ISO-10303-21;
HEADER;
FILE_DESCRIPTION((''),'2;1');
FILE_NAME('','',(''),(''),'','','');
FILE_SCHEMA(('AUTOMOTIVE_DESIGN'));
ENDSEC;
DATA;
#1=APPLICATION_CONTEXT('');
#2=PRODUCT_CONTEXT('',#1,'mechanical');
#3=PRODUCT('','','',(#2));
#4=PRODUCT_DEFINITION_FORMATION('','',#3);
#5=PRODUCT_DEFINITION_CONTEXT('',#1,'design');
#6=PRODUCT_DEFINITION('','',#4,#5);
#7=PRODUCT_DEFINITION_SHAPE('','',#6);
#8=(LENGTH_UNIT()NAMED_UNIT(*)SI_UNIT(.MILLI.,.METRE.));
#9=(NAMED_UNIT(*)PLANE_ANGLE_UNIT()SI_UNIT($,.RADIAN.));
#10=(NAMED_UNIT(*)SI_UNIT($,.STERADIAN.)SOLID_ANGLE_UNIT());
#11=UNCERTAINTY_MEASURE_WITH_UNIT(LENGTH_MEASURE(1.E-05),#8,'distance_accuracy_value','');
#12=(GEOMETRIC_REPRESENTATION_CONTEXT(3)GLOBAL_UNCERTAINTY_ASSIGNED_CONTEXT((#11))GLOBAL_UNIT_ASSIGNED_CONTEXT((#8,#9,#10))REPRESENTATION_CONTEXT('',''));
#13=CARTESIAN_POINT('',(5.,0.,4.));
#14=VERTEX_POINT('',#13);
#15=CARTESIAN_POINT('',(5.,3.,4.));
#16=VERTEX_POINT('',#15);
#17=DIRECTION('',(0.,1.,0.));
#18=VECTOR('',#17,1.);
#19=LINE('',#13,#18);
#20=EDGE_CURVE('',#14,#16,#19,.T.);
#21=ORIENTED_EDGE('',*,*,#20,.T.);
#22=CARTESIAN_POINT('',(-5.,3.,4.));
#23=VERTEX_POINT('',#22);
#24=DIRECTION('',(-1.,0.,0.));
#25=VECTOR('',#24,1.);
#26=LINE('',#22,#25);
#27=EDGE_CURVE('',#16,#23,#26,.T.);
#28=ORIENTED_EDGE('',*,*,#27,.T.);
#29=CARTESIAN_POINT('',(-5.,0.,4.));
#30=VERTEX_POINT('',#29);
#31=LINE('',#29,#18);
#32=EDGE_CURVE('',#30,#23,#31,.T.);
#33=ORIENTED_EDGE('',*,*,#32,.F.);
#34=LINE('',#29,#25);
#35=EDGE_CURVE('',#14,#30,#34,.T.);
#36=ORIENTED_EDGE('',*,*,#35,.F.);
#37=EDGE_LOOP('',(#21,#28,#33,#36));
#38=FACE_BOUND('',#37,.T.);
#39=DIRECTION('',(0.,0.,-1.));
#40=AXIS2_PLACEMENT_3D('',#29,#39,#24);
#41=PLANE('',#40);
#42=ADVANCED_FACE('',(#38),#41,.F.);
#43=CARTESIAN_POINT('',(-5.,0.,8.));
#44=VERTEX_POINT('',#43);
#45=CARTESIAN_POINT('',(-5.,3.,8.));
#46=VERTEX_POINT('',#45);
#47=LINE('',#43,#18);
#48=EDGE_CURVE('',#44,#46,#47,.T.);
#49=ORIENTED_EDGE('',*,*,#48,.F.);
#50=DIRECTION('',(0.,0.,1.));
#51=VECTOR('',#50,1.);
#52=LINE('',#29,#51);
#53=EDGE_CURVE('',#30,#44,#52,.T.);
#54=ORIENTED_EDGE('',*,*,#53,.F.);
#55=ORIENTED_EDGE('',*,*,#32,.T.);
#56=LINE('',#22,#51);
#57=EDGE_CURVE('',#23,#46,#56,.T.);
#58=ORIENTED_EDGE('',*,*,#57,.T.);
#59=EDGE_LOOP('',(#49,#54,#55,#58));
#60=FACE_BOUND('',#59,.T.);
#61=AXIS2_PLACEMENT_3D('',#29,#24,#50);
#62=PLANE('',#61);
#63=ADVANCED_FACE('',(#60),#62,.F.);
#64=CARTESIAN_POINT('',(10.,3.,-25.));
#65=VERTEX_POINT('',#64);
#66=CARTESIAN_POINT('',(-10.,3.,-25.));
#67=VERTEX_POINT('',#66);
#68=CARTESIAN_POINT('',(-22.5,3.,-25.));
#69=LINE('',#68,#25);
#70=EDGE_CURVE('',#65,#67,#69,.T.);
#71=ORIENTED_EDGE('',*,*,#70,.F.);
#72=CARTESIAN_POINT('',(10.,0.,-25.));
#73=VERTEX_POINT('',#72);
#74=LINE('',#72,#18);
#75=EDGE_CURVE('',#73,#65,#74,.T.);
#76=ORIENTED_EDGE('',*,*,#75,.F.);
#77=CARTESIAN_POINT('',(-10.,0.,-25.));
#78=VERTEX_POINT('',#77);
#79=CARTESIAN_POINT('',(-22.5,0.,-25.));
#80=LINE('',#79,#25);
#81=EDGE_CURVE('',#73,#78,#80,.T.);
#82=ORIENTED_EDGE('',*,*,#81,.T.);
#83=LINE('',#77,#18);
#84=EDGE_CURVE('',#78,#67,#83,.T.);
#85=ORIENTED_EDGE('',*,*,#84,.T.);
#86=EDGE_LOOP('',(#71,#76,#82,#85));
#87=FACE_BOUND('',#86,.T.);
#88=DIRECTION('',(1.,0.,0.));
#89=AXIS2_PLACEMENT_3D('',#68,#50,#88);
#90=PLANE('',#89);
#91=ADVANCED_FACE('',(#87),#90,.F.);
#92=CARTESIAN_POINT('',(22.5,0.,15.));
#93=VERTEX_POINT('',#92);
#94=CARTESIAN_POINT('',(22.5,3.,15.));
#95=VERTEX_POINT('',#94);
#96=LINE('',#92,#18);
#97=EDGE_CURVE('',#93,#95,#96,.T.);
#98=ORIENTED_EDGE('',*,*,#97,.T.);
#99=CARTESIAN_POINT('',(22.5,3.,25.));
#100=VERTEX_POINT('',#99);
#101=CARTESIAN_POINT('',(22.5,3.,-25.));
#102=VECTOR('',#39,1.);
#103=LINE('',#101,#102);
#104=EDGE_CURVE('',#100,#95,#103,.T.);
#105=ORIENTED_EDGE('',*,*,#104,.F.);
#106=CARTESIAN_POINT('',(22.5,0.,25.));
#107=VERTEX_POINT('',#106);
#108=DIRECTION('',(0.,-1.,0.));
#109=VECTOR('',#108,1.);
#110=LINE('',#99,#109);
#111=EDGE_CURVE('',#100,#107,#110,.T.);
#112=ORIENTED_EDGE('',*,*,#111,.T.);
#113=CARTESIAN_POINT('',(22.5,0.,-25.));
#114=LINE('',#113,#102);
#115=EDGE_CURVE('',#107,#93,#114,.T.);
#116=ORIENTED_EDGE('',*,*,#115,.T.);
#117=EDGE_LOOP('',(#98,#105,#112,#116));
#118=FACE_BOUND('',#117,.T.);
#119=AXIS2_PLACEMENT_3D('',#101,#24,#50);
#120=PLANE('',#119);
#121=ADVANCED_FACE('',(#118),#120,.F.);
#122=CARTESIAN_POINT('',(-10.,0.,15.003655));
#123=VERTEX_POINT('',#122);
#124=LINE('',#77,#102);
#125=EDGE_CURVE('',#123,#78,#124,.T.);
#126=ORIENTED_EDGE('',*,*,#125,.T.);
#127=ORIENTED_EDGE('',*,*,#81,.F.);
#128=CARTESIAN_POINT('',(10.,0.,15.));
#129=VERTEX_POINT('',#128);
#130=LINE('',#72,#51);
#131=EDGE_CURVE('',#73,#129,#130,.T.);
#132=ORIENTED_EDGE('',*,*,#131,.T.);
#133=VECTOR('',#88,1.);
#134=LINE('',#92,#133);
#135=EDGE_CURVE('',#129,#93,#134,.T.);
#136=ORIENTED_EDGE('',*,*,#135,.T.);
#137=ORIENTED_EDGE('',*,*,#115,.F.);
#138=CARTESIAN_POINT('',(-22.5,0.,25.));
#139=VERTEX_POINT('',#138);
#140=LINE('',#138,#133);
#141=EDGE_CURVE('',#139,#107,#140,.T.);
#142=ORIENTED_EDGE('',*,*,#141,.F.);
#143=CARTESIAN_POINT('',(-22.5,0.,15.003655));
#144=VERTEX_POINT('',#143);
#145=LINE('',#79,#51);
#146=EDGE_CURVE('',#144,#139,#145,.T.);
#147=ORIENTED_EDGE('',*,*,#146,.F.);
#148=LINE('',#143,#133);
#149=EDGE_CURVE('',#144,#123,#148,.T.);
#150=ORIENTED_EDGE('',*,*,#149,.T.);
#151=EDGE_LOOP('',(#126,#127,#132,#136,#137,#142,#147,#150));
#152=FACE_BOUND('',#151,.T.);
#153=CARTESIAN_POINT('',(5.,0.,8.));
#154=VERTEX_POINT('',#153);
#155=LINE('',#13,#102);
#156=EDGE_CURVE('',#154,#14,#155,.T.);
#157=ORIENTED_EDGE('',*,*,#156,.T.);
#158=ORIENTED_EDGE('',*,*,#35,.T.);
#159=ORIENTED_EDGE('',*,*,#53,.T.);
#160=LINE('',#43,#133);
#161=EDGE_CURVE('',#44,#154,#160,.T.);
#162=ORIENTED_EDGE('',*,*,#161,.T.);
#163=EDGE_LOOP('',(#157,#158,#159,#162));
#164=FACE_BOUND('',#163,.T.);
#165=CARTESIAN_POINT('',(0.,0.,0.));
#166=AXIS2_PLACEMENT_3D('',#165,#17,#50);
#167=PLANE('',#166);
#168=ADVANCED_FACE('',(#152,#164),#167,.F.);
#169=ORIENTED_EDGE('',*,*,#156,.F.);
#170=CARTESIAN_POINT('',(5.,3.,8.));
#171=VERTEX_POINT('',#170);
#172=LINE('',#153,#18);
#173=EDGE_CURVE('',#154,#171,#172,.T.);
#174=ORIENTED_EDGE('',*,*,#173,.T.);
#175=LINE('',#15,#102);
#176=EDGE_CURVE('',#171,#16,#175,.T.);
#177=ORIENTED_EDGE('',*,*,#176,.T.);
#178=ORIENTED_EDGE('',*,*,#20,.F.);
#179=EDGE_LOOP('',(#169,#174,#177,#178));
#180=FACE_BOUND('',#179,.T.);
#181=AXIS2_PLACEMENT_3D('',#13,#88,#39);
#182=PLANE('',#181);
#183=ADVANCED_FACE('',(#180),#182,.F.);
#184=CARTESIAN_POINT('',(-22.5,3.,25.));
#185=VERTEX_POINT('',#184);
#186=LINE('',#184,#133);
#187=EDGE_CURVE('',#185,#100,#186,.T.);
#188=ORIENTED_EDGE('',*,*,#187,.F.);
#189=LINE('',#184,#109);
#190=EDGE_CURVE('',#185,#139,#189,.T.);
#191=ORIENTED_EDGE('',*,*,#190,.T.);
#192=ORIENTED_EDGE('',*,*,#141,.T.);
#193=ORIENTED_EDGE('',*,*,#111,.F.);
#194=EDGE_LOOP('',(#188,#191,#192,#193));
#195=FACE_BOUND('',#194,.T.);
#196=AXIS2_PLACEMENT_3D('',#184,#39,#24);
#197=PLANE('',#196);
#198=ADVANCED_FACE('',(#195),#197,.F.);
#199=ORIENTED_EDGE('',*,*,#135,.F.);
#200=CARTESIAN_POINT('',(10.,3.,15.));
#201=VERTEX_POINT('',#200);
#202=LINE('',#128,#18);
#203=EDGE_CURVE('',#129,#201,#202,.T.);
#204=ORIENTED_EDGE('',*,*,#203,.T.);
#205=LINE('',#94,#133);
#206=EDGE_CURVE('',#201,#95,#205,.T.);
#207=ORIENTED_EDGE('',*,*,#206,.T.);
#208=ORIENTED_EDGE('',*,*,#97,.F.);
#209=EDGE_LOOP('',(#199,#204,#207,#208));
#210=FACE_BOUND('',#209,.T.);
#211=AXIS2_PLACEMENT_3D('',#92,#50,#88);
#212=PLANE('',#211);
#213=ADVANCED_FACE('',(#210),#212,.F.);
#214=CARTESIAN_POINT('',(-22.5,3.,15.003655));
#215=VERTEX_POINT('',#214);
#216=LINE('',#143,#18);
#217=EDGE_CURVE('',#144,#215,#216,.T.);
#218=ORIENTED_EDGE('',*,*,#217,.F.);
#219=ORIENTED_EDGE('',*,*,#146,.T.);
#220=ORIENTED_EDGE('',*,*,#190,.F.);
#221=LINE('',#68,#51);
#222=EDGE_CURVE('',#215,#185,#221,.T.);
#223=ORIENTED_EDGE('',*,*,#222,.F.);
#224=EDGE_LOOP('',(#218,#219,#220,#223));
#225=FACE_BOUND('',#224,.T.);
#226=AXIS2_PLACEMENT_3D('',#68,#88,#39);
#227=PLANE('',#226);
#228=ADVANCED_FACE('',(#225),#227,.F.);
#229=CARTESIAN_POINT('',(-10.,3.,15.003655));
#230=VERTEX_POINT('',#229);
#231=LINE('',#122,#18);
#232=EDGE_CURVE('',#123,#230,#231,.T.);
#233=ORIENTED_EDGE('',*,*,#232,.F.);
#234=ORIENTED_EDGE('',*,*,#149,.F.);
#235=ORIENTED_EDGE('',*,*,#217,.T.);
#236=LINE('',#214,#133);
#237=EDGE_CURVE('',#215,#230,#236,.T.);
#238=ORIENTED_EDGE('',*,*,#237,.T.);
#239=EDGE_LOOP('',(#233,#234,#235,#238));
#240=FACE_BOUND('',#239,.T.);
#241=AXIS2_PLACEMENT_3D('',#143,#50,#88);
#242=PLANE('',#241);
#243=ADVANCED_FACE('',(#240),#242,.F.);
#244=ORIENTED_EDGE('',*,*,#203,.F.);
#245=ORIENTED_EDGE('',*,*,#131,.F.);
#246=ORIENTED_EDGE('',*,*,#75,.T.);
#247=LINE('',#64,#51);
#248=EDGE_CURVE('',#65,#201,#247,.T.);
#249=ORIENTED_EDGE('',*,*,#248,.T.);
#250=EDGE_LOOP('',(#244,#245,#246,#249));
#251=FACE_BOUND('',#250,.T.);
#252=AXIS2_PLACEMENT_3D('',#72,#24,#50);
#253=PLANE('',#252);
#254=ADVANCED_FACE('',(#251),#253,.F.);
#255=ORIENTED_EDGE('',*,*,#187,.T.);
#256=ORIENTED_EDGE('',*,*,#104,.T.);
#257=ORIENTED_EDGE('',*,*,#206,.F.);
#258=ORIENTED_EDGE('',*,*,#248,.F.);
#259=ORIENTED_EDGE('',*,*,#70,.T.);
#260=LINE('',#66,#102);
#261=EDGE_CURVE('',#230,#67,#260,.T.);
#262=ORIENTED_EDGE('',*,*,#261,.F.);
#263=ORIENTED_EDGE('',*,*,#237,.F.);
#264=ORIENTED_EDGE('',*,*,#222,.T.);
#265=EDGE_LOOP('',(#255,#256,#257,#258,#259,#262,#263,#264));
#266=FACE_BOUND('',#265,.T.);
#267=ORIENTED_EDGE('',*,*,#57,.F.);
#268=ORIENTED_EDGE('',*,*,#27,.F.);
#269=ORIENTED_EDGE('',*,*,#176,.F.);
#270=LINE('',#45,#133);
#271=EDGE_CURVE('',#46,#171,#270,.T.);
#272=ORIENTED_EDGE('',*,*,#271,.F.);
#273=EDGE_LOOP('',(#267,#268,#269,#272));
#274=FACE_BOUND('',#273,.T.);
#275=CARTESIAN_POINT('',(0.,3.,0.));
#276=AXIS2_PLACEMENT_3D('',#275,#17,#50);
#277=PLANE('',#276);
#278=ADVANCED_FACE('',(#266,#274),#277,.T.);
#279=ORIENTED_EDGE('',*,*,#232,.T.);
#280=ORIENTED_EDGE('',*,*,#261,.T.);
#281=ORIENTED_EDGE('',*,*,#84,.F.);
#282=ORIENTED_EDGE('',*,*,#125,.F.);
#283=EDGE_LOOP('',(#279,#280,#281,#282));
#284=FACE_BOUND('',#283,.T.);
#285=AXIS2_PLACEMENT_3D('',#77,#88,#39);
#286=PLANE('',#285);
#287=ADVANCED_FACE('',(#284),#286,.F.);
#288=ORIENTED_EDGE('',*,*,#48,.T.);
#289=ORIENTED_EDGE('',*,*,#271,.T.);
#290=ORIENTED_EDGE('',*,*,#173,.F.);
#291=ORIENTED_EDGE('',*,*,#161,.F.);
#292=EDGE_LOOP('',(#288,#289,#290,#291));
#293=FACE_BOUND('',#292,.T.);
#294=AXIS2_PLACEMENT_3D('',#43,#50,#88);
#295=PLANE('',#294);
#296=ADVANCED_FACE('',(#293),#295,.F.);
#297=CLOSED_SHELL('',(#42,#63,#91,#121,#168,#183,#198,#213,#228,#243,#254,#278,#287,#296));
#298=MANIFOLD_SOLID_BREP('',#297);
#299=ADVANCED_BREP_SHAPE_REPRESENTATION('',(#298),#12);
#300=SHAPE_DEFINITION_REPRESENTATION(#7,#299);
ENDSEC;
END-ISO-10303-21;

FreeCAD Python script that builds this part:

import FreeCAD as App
import Part
import Sketcher

V = App.Vector
Q = App.Units.Quantity

doc = App.newDocument("Part")
body = doc.addObject("PartDesign::Body", "Body")

# Sketch on XZ plane
sketch1 = doc.addObject("Sketcher::SketchObject", "Sketch")
body.addObject(sketch1)
sketch1.AttachmentSupport = (doc.XZ_Plane, [""])
sketch1.MapMode = "FlatFace"
sketch1.addGeometry([
    Part.LineSegment(V(-22, -25, 0), V(-22, 25, 0)),
    Part.LineSegment(V(-22, 25, 0), V(22, 25, 0)),
    Part.LineSegment(V(22, 25, 0), V(22, -25, 0)),
    Part.LineSegment(V(22, -25, 0), V(-22, -25, 0)),
], False)
sketch1.addConstraint([
    Sketcher.Constraint("Coincident", 0, 2, 1, 1),
    Sketcher.Constraint("Coincident", 1, 2, 2, 1),
    Sketcher.Constraint("Coincident", 2, 2, 3, 1),
    Sketcher.Constraint("Coincident", 3, 2, 0, 1),
    Sketcher.Constraint("Vertical", 0),
    Sketcher.Constraint("Horizontal", 1),
    Sketcher.Constraint("Vertical", 2),
    Sketcher.Constraint("Horizontal", 3),
    Sketcher.Constraint("Symmetric", 0, 2, 2, 2, -1, 1),
    Sketcher.Constraint("DistanceX", 1, 1, 1, 2, Q("45 mm")),
    Sketcher.Constraint("DistanceY", 0, 1, 0, 2, Q("50 mm")),
])
pad1 = doc.addObject("PartDesign::Pad", "Pad")
body.addObject(pad1)
pad1.Profile = sketch1
pad1.Length = 3
pad1.Reversed = True

# Sketch on XZ plane
sketch2 = doc.addObject("Sketcher::SketchObject", "Sketch001")
body.addObject(sketch2)
sketch2.AttachmentSupport = (doc.XZ_Plane, [""])
sketch2.MapMode = "FlatFace"
sketch2.AttachmentOffset = App.Placement(V(0, 0, -3), App.Rotation())
sketch2.addGeometry([
    Part.LineSegment(V(-22.5, -25, 0), V(-22.5, 15, 0)),  # 0
    Part.LineSegment(V(-22.5, 15, 0), V(-10, 15, 0)),  # 1
    Part.LineSegment(V(-10, 15, 0), V(-10, -25, 0)),  # 2
    Part.LineSegment(V(-10, -25, 0), V(-22.5, -25, 0)),  # 3
    Part.LineSegment(V(10, -25, 0), V(10, 15, 0)),  # 4
    Part.LineSegment(V(10, 15, 0), V(22.5, 15, 0)),  # 5
    Part.LineSegment(V(22.5, 15, 0), V(22.5, -25, 0)),  # 6
    Part.LineSegment(V(22.5, -25, 0), V(10, -25, 0)),  # 7
    Part.LineSegment(V(-5, 4, 0), V(-5, 8, 0)),  # 8
    Part.LineSegment(V(-5, 8, 0), V(5, 8, 0)),  # 9
    Part.LineSegment(V(5, 8, 0), V(5, 4, 0)),  # 10
    Part.LineSegment(V(5, 4, 0), V(-5, 4, 0)),  # 11
], False)
sketch2.addConstraint([
    Sketcher.Constraint("Coincident", 0, 2, 1, 1),
    Sketcher.Constraint("Coincident", 1, 2, 2, 1),
    Sketcher.Constraint("Coincident", 2, 2, 3, 1),
    Sketcher.Constraint("Coincident", 3, 2, 0, 1),
    Sketcher.Constraint("Coincident", 4, 2, 5, 1),
    Sketcher.Constraint("Coincident", 5, 2, 6, 1),
    Sketcher.Constraint("Coincident", 6, 2, 7, 1),
    Sketcher.Constraint("Coincident", 7, 2, 4, 1),
    Sketcher.Constraint("Coincident", 8, 2, 9, 1),
    Sketcher.Constraint("Coincident", 9, 2, 10, 1),
    Sketcher.Constraint("Coincident", 10, 2, 11, 1),
    Sketcher.Constraint("Coincident", 11, 2, 8, 1),
    Sketcher.Constraint("Vertical", 0),
    Sketcher.Constraint("Horizontal", 1),
    Sketcher.Constraint("Vertical", 2),
    Sketcher.Constraint("Horizontal", 3),
    Sketcher.Constraint("Vertical", 4),
    Sketcher.Constraint("Horizontal", 5),
    Sketcher.Constraint("Vertical", 6),
    Sketcher.Constraint("Horizontal", 7),
    Sketcher.Constraint("Vertical", 8),
    Sketcher.Constraint("Horizontal", 9),
    Sketcher.Constraint("Vertical", 10),
    Sketcher.Constraint("Horizontal", 11),
    Sketcher.Constraint("Symmetric", 3, 2, 6, 2, -2),
    Sketcher.Constraint("Equal", 3, 5),
    Sketcher.Constraint("DistanceX", 9, 1, 9, 2, Q("10 mm")),
    Sketcher.Constraint("DistanceY", 4, 1, 4, 2, Q("40 mm")),
    Sketcher.Constraint("DistanceY", 8, 1, 8, 2, Q("4 mm")),
    Sketcher.Constraint("DistanceX", 1, 1, 1, 2, Q("12.5 mm")),
    Sketcher.Constraint("DistanceX", 1, 2, -1, 1, Q("10 mm")),
    Sketcher.Constraint("DistanceY", 2, 2, -1, 1, Q("25 mm")),
    Sketcher.Constraint("DistanceX", 8, 2, -1, 1, Q("5 mm")),
    Sketcher.Constraint("DistanceY", -1, 1, 8, 2, Q("8 mm")),
    Sketcher.Constraint("DistanceY", 0, 1, 0, 2, Q("40.003655 mm")),
])
pocket1 = doc.addObject("PartDesign::Pocket", "Pocket")
body.addObject(pocket1)
pocket1.Profile = sketch2
pocket1.Length = 3
pocket1.Reversed = True

doc.recompute()
